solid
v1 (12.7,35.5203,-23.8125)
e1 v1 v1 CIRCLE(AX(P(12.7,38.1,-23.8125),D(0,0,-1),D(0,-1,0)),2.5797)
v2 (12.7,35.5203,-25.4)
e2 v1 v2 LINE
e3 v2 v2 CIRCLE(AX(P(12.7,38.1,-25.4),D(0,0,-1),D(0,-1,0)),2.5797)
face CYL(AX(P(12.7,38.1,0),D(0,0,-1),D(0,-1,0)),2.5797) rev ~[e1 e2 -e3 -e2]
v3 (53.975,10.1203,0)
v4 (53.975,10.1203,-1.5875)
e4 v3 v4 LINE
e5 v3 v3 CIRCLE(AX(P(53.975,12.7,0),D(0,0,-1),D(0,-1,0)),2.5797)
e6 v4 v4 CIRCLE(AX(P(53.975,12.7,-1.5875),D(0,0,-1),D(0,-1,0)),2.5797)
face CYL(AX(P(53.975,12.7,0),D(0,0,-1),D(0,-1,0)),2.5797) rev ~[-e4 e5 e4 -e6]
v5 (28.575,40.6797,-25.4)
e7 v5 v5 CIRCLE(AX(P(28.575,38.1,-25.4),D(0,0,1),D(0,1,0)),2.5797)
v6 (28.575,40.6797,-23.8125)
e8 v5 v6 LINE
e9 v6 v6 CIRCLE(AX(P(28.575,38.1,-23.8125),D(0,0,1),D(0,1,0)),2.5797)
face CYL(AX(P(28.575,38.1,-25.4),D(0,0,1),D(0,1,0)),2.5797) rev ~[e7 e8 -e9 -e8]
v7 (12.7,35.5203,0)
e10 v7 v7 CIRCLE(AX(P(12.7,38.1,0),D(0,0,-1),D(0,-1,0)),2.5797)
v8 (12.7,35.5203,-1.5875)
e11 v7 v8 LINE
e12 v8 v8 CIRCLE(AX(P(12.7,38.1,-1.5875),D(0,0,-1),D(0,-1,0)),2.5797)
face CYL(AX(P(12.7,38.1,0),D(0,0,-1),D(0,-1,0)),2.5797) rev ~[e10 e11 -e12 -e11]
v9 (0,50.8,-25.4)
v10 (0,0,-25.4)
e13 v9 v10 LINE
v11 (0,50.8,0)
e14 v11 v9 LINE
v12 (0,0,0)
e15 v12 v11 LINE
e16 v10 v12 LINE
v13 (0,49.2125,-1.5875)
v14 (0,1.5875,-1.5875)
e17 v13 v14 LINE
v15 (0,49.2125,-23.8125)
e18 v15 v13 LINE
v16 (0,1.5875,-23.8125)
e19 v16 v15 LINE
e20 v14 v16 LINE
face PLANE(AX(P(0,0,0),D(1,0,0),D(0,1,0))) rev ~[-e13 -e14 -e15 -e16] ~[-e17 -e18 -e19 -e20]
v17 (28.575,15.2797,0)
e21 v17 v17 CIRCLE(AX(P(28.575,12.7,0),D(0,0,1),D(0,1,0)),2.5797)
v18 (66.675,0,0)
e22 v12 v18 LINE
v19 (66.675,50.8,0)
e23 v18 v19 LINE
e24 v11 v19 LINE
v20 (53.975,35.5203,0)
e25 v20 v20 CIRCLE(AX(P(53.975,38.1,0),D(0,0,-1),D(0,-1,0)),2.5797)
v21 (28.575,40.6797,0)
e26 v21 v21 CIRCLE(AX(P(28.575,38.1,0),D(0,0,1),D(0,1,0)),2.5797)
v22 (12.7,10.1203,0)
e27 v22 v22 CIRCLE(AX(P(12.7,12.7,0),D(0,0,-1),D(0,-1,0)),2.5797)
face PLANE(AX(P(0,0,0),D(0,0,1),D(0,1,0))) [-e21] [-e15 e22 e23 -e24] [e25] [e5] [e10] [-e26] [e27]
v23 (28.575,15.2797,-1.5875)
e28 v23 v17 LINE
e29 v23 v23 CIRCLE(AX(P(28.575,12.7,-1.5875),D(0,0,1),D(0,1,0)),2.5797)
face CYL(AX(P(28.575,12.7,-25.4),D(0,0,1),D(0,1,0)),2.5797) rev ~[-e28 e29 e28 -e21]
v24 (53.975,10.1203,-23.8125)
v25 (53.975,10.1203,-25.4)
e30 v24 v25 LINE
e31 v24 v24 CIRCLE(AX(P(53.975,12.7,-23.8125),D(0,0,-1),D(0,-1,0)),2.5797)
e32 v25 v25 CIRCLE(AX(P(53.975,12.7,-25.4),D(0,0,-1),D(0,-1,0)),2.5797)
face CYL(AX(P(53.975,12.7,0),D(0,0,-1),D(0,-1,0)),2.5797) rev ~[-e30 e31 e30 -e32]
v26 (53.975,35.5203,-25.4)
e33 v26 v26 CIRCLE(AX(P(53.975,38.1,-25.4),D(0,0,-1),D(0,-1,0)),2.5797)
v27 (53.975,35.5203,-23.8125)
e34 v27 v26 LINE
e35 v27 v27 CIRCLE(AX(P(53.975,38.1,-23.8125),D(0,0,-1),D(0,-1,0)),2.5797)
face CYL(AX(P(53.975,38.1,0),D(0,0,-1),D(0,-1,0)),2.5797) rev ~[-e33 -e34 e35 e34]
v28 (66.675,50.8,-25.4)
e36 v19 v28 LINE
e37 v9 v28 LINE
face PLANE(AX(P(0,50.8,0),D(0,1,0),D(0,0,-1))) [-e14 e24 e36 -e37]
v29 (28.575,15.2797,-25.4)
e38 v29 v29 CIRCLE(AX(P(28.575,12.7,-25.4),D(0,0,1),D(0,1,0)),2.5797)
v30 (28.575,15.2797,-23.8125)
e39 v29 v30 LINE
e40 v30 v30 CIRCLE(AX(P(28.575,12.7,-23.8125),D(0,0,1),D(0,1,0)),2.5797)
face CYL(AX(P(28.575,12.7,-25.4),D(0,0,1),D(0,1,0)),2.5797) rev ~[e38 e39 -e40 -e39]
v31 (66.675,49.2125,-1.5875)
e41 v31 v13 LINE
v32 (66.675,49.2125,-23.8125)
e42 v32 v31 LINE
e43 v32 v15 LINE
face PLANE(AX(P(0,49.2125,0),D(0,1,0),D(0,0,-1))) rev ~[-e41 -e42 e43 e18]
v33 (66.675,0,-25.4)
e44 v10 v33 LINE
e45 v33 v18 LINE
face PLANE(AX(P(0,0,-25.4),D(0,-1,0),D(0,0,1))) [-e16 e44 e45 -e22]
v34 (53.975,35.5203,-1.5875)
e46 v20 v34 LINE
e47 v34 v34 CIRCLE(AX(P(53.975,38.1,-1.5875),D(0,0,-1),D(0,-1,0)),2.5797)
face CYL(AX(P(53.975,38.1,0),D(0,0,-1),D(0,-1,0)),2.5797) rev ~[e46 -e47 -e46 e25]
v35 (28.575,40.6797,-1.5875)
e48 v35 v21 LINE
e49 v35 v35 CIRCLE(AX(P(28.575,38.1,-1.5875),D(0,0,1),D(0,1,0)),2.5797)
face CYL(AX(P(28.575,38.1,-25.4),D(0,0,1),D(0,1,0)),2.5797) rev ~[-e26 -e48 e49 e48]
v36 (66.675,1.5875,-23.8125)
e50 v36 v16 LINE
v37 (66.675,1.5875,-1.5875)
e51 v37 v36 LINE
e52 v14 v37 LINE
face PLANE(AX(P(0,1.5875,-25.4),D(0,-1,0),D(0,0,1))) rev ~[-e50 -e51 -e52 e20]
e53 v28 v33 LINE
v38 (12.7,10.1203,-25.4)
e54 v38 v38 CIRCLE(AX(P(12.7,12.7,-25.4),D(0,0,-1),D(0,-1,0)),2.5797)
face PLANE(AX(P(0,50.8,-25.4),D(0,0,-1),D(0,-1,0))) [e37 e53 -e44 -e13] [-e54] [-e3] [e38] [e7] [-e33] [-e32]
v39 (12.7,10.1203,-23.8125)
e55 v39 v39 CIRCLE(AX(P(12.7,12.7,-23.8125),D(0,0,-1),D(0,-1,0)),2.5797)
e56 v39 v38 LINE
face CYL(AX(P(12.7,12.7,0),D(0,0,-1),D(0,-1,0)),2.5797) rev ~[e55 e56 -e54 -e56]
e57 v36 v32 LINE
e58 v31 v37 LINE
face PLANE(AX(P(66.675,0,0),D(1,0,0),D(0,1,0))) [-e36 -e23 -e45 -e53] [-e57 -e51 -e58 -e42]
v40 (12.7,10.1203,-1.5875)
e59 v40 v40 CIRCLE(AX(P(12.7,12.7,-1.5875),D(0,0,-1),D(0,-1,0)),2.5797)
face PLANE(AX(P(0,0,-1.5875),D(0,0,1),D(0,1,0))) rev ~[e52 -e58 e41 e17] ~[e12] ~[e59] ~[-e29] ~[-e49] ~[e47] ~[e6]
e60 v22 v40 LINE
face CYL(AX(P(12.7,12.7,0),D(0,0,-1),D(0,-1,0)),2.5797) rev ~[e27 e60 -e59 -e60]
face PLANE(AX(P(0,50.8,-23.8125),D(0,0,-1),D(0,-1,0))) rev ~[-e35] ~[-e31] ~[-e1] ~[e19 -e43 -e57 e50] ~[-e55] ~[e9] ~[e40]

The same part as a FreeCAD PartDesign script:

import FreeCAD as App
import Part
import Sketcher
from FreeCAD import Vector
Q = App.Units.Quantity


def faces_at(feature, points):
    """Names of the faces that lie closest to the given points."""
    faces = feature.Shape.Faces
    near = lambda p: min(range(len(faces)), key=lambda i: faces[i].distToShape(Part.Vertex(*p))[0])
    return sorted({f"Face{near(p) + 1}" for p in points})

doc = App.newDocument("Part")
body = doc.addObject("PartDesign::Body", "Body")

sketch1 = body.newObject("Sketcher::SketchObject", "Sketch")
sketch1.AttachmentSupport = (doc.getObject("YZ_Plane"), [""])
sketch1.MapMode = "FlatFace"
sketch1.addGeometry([
    Part.LineSegment(Vector(51, 0, 0), Vector(0, 0, 0)),
    Part.LineSegment(Vector(0, 0, 0), Vector(0, -25, 0)),
    Part.LineSegment(Vector(0, -25, 0), Vector(51, -25, 0)),
    Part.LineSegment(Vector(51, -25, 0), Vector(51, 0, 0)),
], False)
sketch1.addConstraint([
    Sketcher.Constraint("Coincident", 0, 2, 1, 1),
    Sketcher.Constraint("Coincident", 1, 2, 2, 1),
    Sketcher.Constraint("Coincident", 2, 2, 3, 1),
    Sketcher.Constraint("Coincident", 3, 2, 0, 1),
    Sketcher.Constraint("Horizontal", 0),
    Sketcher.Constraint("Vertical", 1),
    Sketcher.Constraint("Horizontal", 2),
    Sketcher.Constraint("Vertical", 3),
    Sketcher.Constraint("Coincident", 0, 2, -1, 1),
    Sketcher.Constraint("DistanceX", 0, 2, 0, 1, Q("2 in")),
    Sketcher.Constraint("DistanceY", 1, 2, 1, 1, Q("1 in")),
])
pad1 = body.newObject("PartDesign::Pad", "Pad")
pad1.Profile = sketch1
pad1.Length = Q("2.625 in")
doc.recompute()

thickness = body.newObject("PartDesign::Thickness", "Thickness")
thickness.Base = (pad1, faces_at(pad1, [(0, 16.933, -16.933), (66.675, 16.933, -16.933)]))
thickness.Value = Q("0.0625 in")
thickness.Reversed = True
thickness.Join = "Intersection"

sketch2 = body.newObject("Sketcher::SketchObject", "Sketch001")
sketch2.AttachmentSupport = (doc.getObject("XY_Plane"), [""])
sketch2.MapMode = "FlatFace"
sketch2.addGeometry(Part.Circle(Vector(54, 12.7, 0), Vector(0, 0, 1), 2.6), False)
sketch2.addConstraint([
    Sketcher.Constraint("Diameter", 0, Q("0.203126 in")),
    Sketcher.Constraint("DistanceY", -1, 1, 0, 3, Q("0.5 in")),
    Sketcher.Constraint("DistanceX", -1, 1, 0, 3, Q("2.125 in")),
])
doc.recompute()
hole = body.newObject("PartDesign::Hole", "Hole")
hole.Profile = sketch2
hole.ThreadType = "None"
hole.Diameter = Q("0.203126 in")
hole.DepthType = "ThroughAll"

sketch3 = body.newObject("Sketcher::SketchObject", "Sketch002")
sketch3.AttachmentSupport = (doc.getObject("XY_Plane"), [""])
sketch3.MapMode = "FlatFace"
sketch3.addGeometry(Part.Circle(Vector(54, 38.1, 0), Vector(0, 0, 1), 2.6), False)
sketch3.addConstraint([
    Sketcher.Constraint("Diameter", 0, Q("0.203126 in")),
    Sketcher.Constraint("DistanceY", -1, 1, 0, 3, Q("1.5 in")),
    Sketcher.Constraint("DistanceX", -1, 1, 0, 3, Q("2.125 in")),
])
doc.recompute()
hole2 = body.newObject("PartDesign::Hole", "Hole001")
hole2.Profile = sketch3
hole2.ThreadType = "None"
hole2.Diameter = Q("0.203126 in")
hole2.DepthType = "ThroughAll"

sketch4 = body.newObject("Sketcher::SketchObject", "Sketch003")
sketch4.AttachmentSupport = (doc.getObject("XY_Plane"), [""])
sketch4.MapMode = "FlatFace"
sketch4.addGeometry(Part.Circle(Vector(12.7, 38.1, 0), Vector(0, 0, 1), 2.6), False)
sketch4.addConstraint([
    Sketcher.Constraint("Diameter", 0, Q("0.203126 in")),
    Sketcher.Constraint("DistanceX", -1, 1, 0, 3, Q("0.5 in")),
    Sketcher.Constraint("DistanceY", -1, 1, 0, 3, Q("1.5 in")),
])
doc.recompute()
hole3 = body.newObject("PartDesign::Hole", "Hole002")
hole3.Profile = sketch4
hole3.ThreadType = "None"
hole3.Diameter = Q("0.203126 in")
hole3.DepthType = "ThroughAll"

sketch5 = body.newObject("Sketcher::SketchObject", "Sketch004")
sketch5.AttachmentSupport = (doc.getObject("XY_Plane"), [""])
sketch5.MapMode = "FlatFace"
sketch5.addGeometry(Part.Circle(Vector(12.7, 12.7, 0), Vector(0, 0, 1), 2.6), False)
sketch5.addConstraint([
    Sketcher.Constraint("Diameter", 0, Q("0.203126 in")),
    Sketcher.Constraint("DistanceX", -1, 1, 0, 3, Q("0.5 in")),
    Sketcher.Constraint("DistanceY", -1, 1, 0, 3, Q("0.5 in")),
])
doc.recompute()
hole4 = body.newObject("PartDesign::Hole", "Hole003")
hole4.Profile = sketch5
hole4.ThreadType = "None"
hole4.Diameter = Q("0.203126 in")
hole4.DepthType = "ThroughAll"

sketch6 = body.newObject("Sketcher::SketchObject", "Sketch005")
sketch6.AttachmentSupport = (doc.getObject("XY_Plane"), [""])
sketch6.MapMode = "FlatFace"
sketch6.AttachmentOffset = App.Placement(Vector(0, 0, -1 * 25.4), App.Rotation())
sketch6.addGeometry(Part.Circle(Vector(28.6, 38.1, 0), Vector(0, 0, 1), 2.6), False)
sketch6.addConstraint([
    Sketcher.Constraint("Diameter", 0, Q("0.203126 in")),
    Sketcher.Constraint("DistanceY", -1, 1, 0, 3, Q("1.5 in")),
    Sketcher.Constraint("DistanceX", -1, 1, 0, 3, Q("1.125 in")),
])
doc.recompute()
hole5 = body.newObject("PartDesign::Hole", "Hole004")
hole5.Profile = sketch6
hole5.ThreadType = "None"
hole5.Diameter = Q("0.203126 in")
hole5.DepthType = "ThroughAll"
hole5.Reversed = True

sketch7 = body.newObject("Sketcher::SketchObject", "Sketch006")
sketch7.AttachmentSupport = (doc.getObject("XY_Plane"), [""])
sketch7.MapMode = "FlatFace"
sketch7.AttachmentOffset = App.Placement(Vector(0, 0, -1 * 25.4), App.Rotation())
sketch7.addGeometry(Part.Circle(Vector(28.6, 12.7, 0), Vector(0, 0, 1), 2.6), False)
sketch7.addConstraint([
    Sketcher.Constraint("Diameter", 0, Q("0.203126 in")),
    Sketcher.Constraint("DistanceY", -1, 1, 0, 3, Q("0.5 in")),
    Sketcher.Constraint("DistanceX", -1, 1, 0, 3, Q("1.125 in")),
])
doc.recompute()
hole6 = body.newObject("PartDesign::Hole", "Hole005")
hole6.Profile = sketch7
hole6.ThreadType = "None"
hole6.Diameter = Q("0.203126 in")
hole6.DepthType = "ThroughAll"
hole6.Reversed = True

doc.recompute()
